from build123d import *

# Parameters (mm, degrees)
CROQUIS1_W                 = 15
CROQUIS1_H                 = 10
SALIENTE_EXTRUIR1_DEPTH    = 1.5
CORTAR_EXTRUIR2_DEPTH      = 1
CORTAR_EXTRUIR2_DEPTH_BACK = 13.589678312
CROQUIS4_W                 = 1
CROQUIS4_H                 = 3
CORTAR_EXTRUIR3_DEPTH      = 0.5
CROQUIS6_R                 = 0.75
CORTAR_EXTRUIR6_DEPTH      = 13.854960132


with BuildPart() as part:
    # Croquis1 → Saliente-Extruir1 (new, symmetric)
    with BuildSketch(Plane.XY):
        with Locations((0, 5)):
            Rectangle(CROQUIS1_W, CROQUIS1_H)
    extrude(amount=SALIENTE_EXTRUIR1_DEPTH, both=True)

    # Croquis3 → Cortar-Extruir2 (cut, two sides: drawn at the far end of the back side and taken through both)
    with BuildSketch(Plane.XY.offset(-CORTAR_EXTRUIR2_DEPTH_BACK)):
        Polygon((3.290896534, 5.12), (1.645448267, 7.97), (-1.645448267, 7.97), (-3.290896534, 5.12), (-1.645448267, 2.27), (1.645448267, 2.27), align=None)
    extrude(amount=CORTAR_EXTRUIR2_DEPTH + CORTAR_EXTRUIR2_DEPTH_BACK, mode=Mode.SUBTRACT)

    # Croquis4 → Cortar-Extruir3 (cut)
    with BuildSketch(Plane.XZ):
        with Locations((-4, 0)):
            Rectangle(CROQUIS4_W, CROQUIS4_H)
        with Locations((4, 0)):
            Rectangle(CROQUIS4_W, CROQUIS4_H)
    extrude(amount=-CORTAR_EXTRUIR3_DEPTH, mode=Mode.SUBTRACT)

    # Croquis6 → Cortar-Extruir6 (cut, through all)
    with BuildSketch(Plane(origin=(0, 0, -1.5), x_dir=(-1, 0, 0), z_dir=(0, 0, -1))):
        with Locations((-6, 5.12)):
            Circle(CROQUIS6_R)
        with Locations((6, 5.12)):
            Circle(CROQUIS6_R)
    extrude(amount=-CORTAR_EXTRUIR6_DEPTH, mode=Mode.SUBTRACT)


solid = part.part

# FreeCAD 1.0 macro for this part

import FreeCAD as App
import Part
import Sketcher
from FreeCAD import Vector
Q = App.Units.Quantity


def add_polygon(sketch, points):
    """Adds a closed chain of lines whose ends are joined by coincident constraints."""
    first, n = sketch.GeometryCount, len(points)
    for a, b in zip(points, points[1:] + points[:1]):
        sketch.addGeometry(Part.LineSegment(App.Vector(*a, 0), App.Vector(*b, 0)), False)
    for i in range(n):
        sketch.addConstraint(Sketcher.Constraint("Coincident", first + i, 2, first + (i + 1) % n, 1))

doc = App.newDocument("Part")
body = doc.addObject("PartDesign::Body", "Body")

# Sketch on XY plane
sketch1 = body.newObject("Sketcher::SketchObject", "Sketch")
sketch1.AttachmentSupport = (doc.getObject("XY_Plane"), [""])
sketch1.MapMode = "FlatFace"
add_polygon(sketch1, [(-8, 10), (-8, 0), (8, 0), (8, 10)])  # lines 0-3
sketch1.addConstraint([
    Sketcher.Constraint("Vertical", 0),
    Sketcher.Constraint("Horizontal", 1),
    Sketcher.Constraint("Vertical", 2),
    Sketcher.Constraint("Horizontal", 3),
    Sketcher.Constraint("Symmetric", 0, 2, 1, 2, -1, 1),
    Sketcher.Constraint("DistanceX", 1, 1, 1, 2, 15.0),
    Sketcher.Constraint("DistanceY", 0, 2, 0, 1, 10.0),
])
pad1 = body.newObject("PartDesign::Pad", "Pad")
pad1.Profile = sketch1
pad1.Length = 3
pad1.Midplane = True

# Sketch on XY plane
sketch2 = body.newObject("Sketcher::SketchObject", "Sketch001")
sketch2.AttachmentSupport = (doc.getObject("XY_Plane"), [""])
sketch2.MapMode = "FlatFace"
add_polygon(sketch2, [(3.3, 5.1), (1.6, 8), (-1.6, 8), (-3.3, 5.1), (-1.6, 2.3), (1.6, 2.3)])  # lines 0-5
sketch2.addConstraint([
    Sketcher.Constraint("Horizontal", 1),
    Sketcher.Constraint("Horizontal", 4),
    Sketcher.Constraint("Symmetric", 2, 2, 5, 2, -2),
    Sketcher.Constraint("Parallel", 0, 3),
    Sketcher.Constraint("Parallel", 2, 5),
    Sketcher.Constraint("Vertical", 1, 2, 3, 2),
    Sketcher.Constraint("Vertical", 0, 2, 4, 2),
    Sketcher.Constraint("Angle", 0, Q("120 deg")),
    Sketcher.Constraint("DistanceY", 3, 2, 1, 2, 5.7),
    Sketcher.Constraint("DistanceY", -1, 1, 0, 2, 7.97),
    Sketcher.Constraint("DistanceX", 1, 2, 1, 1, 3.290897),
])
pocket1 = body.newObject("PartDesign::Pocket", "Pocket")
pocket1.Profile = sketch2
pocket1.Type = "TwoLengths"
pocket1.Length = 1
pocket1.Length2 = 13.589678
pocket1.Reversed = True

# Sketch on XZ plane
sketch3 = body.newObject("Sketcher::SketchObject", "Sketch002")
sketch3.AttachmentSupport = (doc.getObject("XZ_Plane"), [""])
sketch3.MapMode = "FlatFace"
add_polygon(sketch3, [(-4.5, 1.5), (-4.5, -1.5), (-3.5, -1.5), (-3.5, 1.5)])  # lines 0-3
add_polygon(sketch3, [(3.5, 1.5), (3.5, -1.5), (4.5, -1.5), (4.5, 1.5)])  # lines 4-7
sketch3.addConstraint([
    Sketcher.Constraint("Vertical", 0),
    Sketcher.Constraint("Horizontal", 1),
    Sketcher.Constraint("Vertical", 2),
    Sketcher.Constraint("Horizontal", 3),
    Sketcher.Constraint("Vertical", 4),
    Sketcher.Constraint("Horizontal", 5),
    Sketcher.Constraint("Vertical", 6),
    Sketcher.Constraint("Horizontal", 7),
    Sketcher.Constraint("Symmetric", 2, 2, 4, 2, -1, 1),
    Sketcher.Constraint("Symmetric", 0, 2, 6, 2, -1, 1),
    Sketcher.Constraint("Horizontal", 1, 2, 4, 2),
    Sketcher.Constraint("DistanceX", 1, 1, 1, 2, 1.0),
    Sketcher.Constraint("DistanceY", 0, 2, 0, 1, 3.0),
    Sketcher.Constraint("DistanceX", 1, 2, 4, 2, 7.0),
])
pocket2 = body.newObject("PartDesign::Pocket", "Pocket001")
pocket2.Profile = sketch3
pocket2.Length = 0.5

# Sketch on XY plane
sketch4 = body.newObject("Sketcher::SketchObject", "Sketch003")
sketch4.AttachmentSupport = (doc.getObject("XY_Plane"), [""])
sketch4.MapMode = "FlatFace"
sketch4.AttachmentOffset = App.Placement(Vector(0, 0, -1.5), App.Rotation())
sketch4.addGeometry([
    Part.Circle(Vector(6, 5.1, 0), Vector(0, 0, 1), 0.8),
    Part.Circle(Vector(-6, 5.1, 0), Vector(0, 0, 1), 0.8),
], False)
sketch4.addConstraint([
    Sketcher.Constraint("Equal", 0, 1),
    Sketcher.Constraint("Symmetric", 0, 3, 1, 3, -2),
    Sketcher.Constraint("Diameter", 0, 1.5),
    Sketcher.Constraint("DistanceX", -1, 1, 0, 3, 6.0),
    Sketcher.Constraint("DistanceY", -1, 1, 0, 3, 5.12),
])
pocket3 = body.newObject("PartDesign::Pocket", "Pocket002")
pocket3.Profile = sketch4
pocket3.Type = "ThroughAll"
pocket3.Reversed = True

doc.recompute()
